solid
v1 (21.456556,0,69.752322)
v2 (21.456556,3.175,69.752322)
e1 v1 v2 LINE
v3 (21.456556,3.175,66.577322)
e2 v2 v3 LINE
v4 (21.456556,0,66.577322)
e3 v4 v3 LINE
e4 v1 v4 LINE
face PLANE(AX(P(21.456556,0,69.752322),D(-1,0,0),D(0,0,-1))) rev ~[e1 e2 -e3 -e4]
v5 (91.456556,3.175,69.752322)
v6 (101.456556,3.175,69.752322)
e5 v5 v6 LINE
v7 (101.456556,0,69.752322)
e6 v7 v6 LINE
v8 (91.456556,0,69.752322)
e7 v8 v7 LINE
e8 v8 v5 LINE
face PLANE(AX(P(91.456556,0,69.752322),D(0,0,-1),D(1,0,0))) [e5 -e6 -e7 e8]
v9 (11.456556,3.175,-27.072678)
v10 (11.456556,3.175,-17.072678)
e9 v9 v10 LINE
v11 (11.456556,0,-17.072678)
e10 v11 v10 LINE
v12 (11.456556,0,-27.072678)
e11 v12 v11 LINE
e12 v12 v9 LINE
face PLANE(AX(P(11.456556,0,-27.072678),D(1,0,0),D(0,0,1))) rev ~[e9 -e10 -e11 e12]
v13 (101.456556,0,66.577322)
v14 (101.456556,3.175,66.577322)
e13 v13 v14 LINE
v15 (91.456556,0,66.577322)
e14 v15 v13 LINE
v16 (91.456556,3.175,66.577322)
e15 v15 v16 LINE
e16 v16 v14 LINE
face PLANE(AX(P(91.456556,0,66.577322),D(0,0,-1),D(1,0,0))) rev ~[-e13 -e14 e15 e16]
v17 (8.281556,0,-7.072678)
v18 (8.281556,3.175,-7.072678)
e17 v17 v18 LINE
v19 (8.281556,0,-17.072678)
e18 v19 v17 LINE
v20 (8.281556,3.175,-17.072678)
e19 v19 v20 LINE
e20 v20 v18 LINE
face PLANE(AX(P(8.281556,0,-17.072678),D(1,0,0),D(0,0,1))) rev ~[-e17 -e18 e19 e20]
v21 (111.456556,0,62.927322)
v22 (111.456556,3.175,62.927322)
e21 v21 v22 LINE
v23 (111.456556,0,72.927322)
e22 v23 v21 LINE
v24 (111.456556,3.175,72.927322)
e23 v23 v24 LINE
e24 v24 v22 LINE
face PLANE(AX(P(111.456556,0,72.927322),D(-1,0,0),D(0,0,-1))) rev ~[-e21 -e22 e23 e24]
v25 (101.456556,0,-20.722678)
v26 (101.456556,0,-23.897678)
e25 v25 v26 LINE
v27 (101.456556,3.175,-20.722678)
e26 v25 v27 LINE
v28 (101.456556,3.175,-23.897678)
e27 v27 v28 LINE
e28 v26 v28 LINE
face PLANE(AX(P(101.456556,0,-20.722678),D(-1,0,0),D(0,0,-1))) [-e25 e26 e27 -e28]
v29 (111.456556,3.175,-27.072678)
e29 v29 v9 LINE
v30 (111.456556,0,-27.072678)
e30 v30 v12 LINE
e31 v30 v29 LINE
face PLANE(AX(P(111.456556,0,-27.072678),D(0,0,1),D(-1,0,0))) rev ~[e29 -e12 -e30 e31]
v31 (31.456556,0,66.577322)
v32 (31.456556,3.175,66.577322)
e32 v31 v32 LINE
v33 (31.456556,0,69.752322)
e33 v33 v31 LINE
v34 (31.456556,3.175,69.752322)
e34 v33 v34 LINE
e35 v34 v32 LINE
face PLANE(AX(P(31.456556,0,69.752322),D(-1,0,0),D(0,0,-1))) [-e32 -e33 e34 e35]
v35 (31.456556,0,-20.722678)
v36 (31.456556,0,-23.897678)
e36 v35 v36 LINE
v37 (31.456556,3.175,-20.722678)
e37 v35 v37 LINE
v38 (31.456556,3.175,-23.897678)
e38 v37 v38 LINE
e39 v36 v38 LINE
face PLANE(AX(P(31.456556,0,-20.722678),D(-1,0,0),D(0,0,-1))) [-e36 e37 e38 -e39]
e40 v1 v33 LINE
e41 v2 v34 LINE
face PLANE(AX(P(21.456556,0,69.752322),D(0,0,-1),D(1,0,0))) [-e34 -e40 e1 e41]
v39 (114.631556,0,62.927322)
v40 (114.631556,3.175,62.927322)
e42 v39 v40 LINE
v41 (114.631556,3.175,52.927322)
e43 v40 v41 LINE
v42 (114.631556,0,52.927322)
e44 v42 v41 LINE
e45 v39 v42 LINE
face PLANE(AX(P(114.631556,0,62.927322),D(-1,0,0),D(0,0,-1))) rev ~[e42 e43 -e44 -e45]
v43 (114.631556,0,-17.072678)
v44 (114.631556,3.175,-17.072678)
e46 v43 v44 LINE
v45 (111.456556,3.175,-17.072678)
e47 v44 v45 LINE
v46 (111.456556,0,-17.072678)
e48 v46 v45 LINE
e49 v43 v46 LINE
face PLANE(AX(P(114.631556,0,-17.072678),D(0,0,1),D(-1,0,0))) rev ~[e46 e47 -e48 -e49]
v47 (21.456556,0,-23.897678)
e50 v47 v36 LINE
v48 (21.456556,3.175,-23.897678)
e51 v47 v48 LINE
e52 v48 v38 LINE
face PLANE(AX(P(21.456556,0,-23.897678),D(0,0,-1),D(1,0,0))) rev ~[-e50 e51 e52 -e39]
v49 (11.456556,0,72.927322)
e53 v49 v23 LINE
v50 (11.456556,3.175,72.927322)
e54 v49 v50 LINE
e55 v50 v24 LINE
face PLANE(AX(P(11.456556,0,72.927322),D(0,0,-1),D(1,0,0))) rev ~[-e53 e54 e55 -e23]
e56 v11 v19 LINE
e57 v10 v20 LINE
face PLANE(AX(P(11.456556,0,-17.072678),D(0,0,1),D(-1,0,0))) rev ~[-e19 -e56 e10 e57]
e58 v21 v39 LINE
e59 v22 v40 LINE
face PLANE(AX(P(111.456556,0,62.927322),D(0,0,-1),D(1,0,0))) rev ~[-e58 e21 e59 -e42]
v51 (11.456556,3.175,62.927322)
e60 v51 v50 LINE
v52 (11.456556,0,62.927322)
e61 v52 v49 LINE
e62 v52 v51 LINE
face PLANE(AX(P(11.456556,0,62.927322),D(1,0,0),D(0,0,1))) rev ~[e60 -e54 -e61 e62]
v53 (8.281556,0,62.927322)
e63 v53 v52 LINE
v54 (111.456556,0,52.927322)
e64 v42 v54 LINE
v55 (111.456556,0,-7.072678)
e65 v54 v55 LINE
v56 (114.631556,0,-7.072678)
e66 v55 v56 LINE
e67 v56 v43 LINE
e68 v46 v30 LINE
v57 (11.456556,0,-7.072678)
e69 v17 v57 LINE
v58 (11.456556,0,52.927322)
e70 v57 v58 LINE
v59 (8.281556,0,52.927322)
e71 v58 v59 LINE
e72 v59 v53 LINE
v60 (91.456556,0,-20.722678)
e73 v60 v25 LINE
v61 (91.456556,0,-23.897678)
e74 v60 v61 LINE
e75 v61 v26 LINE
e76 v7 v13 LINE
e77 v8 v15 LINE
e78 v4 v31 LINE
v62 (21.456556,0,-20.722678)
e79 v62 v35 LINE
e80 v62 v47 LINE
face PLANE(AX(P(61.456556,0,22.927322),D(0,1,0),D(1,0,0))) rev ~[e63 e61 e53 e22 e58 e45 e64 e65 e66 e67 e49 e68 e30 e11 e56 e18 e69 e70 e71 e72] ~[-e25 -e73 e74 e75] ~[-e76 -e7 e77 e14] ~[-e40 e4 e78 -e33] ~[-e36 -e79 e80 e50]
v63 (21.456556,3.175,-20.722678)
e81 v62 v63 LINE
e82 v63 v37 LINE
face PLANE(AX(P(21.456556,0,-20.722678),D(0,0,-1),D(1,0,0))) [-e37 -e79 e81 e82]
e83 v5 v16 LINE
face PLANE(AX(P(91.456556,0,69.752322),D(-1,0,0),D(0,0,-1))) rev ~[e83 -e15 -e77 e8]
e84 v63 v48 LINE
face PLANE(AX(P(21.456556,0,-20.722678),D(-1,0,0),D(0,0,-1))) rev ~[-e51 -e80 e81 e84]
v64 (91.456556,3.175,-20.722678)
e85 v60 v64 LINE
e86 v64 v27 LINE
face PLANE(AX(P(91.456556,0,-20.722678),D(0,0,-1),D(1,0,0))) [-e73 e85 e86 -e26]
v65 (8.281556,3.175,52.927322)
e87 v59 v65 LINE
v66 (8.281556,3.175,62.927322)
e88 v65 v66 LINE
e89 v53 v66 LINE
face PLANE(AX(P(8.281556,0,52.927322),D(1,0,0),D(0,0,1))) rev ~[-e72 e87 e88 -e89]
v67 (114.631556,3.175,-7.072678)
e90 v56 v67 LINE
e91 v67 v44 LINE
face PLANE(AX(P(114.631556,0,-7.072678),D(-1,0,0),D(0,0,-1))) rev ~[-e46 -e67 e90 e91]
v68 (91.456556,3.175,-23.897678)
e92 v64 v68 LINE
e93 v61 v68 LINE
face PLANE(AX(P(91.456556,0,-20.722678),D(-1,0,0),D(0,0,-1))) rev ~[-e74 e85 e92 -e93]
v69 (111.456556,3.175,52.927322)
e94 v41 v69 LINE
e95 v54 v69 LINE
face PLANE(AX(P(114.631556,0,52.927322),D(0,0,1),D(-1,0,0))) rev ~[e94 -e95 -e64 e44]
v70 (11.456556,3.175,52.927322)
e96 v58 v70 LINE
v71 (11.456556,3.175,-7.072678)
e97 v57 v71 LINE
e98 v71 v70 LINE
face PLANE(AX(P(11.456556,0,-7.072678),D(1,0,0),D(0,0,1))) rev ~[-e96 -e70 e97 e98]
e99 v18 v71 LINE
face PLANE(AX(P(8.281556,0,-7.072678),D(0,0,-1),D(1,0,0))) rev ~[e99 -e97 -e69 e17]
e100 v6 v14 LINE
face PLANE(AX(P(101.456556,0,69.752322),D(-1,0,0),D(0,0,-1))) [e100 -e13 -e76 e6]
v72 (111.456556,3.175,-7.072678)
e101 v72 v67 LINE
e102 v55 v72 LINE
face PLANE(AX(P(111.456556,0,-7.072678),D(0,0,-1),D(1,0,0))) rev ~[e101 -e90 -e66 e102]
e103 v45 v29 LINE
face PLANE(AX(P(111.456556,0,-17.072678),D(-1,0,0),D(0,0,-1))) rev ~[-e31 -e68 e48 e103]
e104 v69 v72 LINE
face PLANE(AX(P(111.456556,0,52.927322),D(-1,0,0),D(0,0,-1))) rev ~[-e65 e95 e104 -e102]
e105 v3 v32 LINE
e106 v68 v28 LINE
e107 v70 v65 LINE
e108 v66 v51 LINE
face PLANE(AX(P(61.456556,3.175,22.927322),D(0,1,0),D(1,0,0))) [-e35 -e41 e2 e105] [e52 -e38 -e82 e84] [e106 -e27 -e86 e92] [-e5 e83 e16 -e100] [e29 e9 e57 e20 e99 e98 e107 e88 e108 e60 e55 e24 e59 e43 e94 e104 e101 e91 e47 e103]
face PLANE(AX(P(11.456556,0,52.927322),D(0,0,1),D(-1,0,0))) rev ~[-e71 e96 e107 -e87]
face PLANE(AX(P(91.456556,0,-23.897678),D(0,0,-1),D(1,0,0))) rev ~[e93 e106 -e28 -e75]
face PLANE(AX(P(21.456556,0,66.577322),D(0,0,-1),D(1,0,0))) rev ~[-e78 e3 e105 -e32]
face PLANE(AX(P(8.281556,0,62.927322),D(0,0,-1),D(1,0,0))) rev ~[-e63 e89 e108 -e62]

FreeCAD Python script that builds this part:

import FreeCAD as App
import Part
import Sketcher
from FreeCAD import Vector

doc = App.newDocument("Part")
params = doc.addObject("Spreadsheet::Sheet", "Params")
for row, (alias, value) in enumerate([
    ("sketch1_width", "100 mm"),
    ("sketch1_width2", "10 mm"),
    ("sketch1_height", "60 mm"),
    ("pad1_length", "3.175 mm"),
], start=1):
    params.set(f"A{row}", alias)
    params.set(f"B{row}", "=" + value)
    params.setAlias(f"B{row}", alias)

body = doc.addObject("PartDesign::Body", "Body")

sketch1 = body.newObject("Sketcher::SketchObject", "Sketch")
sketch1.AttachmentSupport = (doc.getObject("XZ_Plane"), [""])
sketch1.MapMode = "FlatFace"
sketch1.addGeometry(Part.LineSegment(Vector(11.5, 72.9, 0), Vector(111.5, 72.9, 0)), False)
sketch1.addGeometry(Part.LineSegment(Vector(111.5, 72.9, 0), Vector(111.5, 62.9, 0)), False)
sketch1.addGeometry(Part.LineSegment(Vector(111.5, 62.9, 0), Vector(114.6, 62.9, 0)), False)
sketch1.addGeometry(Part.LineSegment(Vector(114.6, 62.9, 0), Vector(114.6, 52.9, 0)), False)
sketch1.addGeometry(Part.LineSegment(Vector(114.6, 52.9, 0), Vector(111.5, 52.9, 0)), False)
sketch1.addGeometry(Part.LineSegment(Vector(111.5, 52.9, 0), Vector(111.5, -7.1, 0)), False)
sketch1.addGeometry(Part.LineSegment(Vector(111.5, -7.1, 0), Vector(114.6, -7.1, 0)), False)
sketch1.addGeometry(Part.LineSegment(Vector(114.6, -7.1, 0), Vector(114.6, -17.1, 0)), False)
sketch1.addGeometry(Part.LineSegment(Vector(114.6, -17.1, 0), Vector(111.5, -17.1, 0)), False)
sketch1.addGeometry(Part.LineSegment(Vector(111.5, -17.1, 0), Vector(111.5, -27.1, 0)), False)
sketch1.addGeometry(Part.LineSegment(Vector(111.5, -27.1, 0), Vector(11.5, -27.1, 0)), False)
sketch1.addGeometry(Part.LineSegment(Vector(11.5, -27.1, 0), Vector(11.5, -17.1, 0)), False)
sketch1.addGeometry(Part.LineSegment(Vector(11.5, -17.1, 0), Vector(8.3, -17.1, 0)), False)
sketch1.addGeometry(Part.LineSegment(Vector(8.3, -17.1, 0), Vector(8.3, -7.1, 0)), False)
sketch1.addGeometry(Part.LineSegment(Vector(8.3, -7.1, 0), Vector(11.5, -7.1, 0)), False)
sketch1.addGeometry(Part.LineSegment(Vector(11.5, -7.1, 0), Vector(11.5, 52.9, 0)), False)
sketch1.addGeometry(Part.LineSegment(Vector(11.5, 52.9, 0), Vector(8.3, 52.9, 0)), False)
sketch1.addGeometry(Part.LineSegment(Vector(8.3, 52.9, 0), Vector(8.3, 62.9, 0)), False)
sketch1.addGeometry(Part.LineSegment(Vector(8.3, 62.9, 0), Vector(11.5, 62.9, 0)), False)
sketch1.addGeometry(Part.LineSegment(Vector(11.5, 62.9, 0), Vector(11.5, 72.9, 0)), False)
sketch1.addGeometry(Part.LineSegment(Vector(31.5, 69.8, 0), Vector(21.5, 69.8, 0)), False)
sketch1.addGeometry(Part.LineSegment(Vector(21.5, 69.8, 0), Vector(21.5, 66.6, 0)), False)
sketch1.addGeometry(Part.LineSegment(Vector(21.5, 66.6, 0), Vector(31.5, 66.6, 0)), False)
sketch1.addGeometry(Part.LineSegment(Vector(31.5, 66.6, 0), Vector(31.5, 69.8, 0)), False)
sketch1.addGeometry(Part.LineSegment(Vector(101.5, 69.8, 0), Vector(91.5, 69.8, 0)), False)
sketch1.addGeometry(Part.LineSegment(Vector(91.5, 69.8, 0), Vector(91.5, 66.6, 0)), False)
sketch1.addGeometry(Part.LineSegment(Vector(91.5, 66.6, 0), Vector(101.5, 66.6, 0)), False)
sketch1.addGeometry(Part.LineSegment(Vector(101.5, 66.6, 0), Vector(101.5, 69.8, 0)), False)
sketch1.addGeometry(Part.LineSegment(Vector(31.5, -20.7, 0), Vector(21.5, -20.7, 0)), False)
sketch1.addGeometry(Part.LineSegment(Vector(21.5, -20.7, 0), Vector(21.5, -23.9, 0)), False)
sketch1.addGeometry(Part.LineSegment(Vector(21.5, -23.9, 0), Vector(31.5, -23.9, 0)), False)
sketch1.addGeometry(Part.LineSegment(Vector(31.5, -23.9, 0), Vector(31.5, -20.7, 0)), False)
sketch1.addGeometry(Part.LineSegment(Vector(101.5, -20.7, 0), Vector(91.5, -20.7, 0)), False)
sketch1.addGeometry(Part.LineSegment(Vector(91.5, -20.7, 0), Vector(91.5, -23.9, 0)), False)
sketch1.addGeometry(Part.LineSegment(Vector(91.5, -23.9, 0), Vector(101.5, -23.9, 0)), False)
sketch1.addGeometry(Part.LineSegment(Vector(101.5, -23.9, 0), Vector(101.5, -20.7, 0)), False)
sketch1.addConstraint(Sketcher.Constraint("Coincident", 0, 2, 1, 1))
sketch1.addConstraint(Sketcher.Constraint("Coincident", 1, 2, 2, 1))
sketch1.addConstraint(Sketcher.Constraint("Coincident", 2, 2, 3, 1))
sketch1.addConstraint(Sketcher.Constraint("Coincident", 3, 2, 4, 1))
sketch1.addConstraint(Sketcher.Constraint("Coincident", 4, 2, 5, 1))
sketch1.addConstraint(Sketcher.Constraint("Coincident", 5, 2, 6, 1))
sketch1.addConstraint(Sketcher.Constraint("Coincident", 6, 2, 7, 1))
sketch1.addConstraint(Sketcher.Constraint("Coincident", 7, 2, 8, 1))
sketch1.addConstraint(Sketcher.Constraint("Coincident", 8, 2, 9, 1))
sketch1.addConstraint(Sketcher.Constraint("Coincident", 9, 2, 10, 1))
sketch1.addConstraint(Sketcher.Constraint("Coincident", 10, 2, 11, 1))
sketch1.addConstraint(Sketcher.Constraint("Coincident", 11, 2, 12, 1))
sketch1.addConstraint(Sketcher.Constraint("Coincident", 12, 2, 13, 1))
sketch1.addConstraint(Sketcher.Constraint("Coincident", 13, 2, 14, 1))
sketch1.addConstraint(Sketcher.Constraint("Coincident", 14, 2, 15, 1))
sketch1.addConstraint(Sketcher.Constraint("Coincident", 15, 2, 16, 1))
sketch1.addConstraint(Sketcher.Constraint("Coincident", 16, 2, 17, 1))
sketch1.addConstraint(Sketcher.Constraint("Coincident", 17, 2, 18, 1))
sketch1.addConstraint(Sketcher.Constraint("Coincident", 18, 2, 19, 1))
sketch1.addConstraint(Sketcher.Constraint("Coincident", 19, 2, 0, 1))
sketch1.addConstraint(Sketcher.Constraint("Coincident", 20, 2, 21, 1))
sketch1.addConstraint(Sketcher.Constraint("Coincident", 21, 2, 22, 1))
sketch1.addConstraint(Sketcher.Constraint("Coincident", 22, 2, 23, 1))
sketch1.addConstraint(Sketcher.Constraint("Coincident", 23, 2, 20, 1))
sketch1.addConstraint(Sketcher.Constraint("Coincident", 24, 2, 25, 1))
sketch1.addConstraint(Sketcher.Constraint("Coincident", 25, 2, 26, 1))
sketch1.addConstraint(Sketcher.Constraint("Coincident", 26, 2, 27, 1))
sketch1.addConstraint(Sketcher.Constraint("Coincident", 27, 2, 24, 1))
sketch1.addConstraint(Sketcher.Constraint("Coincident", 28, 2, 29, 1))
sketch1.addConstraint(Sketcher.Constraint("Coincident", 29, 2, 30, 1))
sketch1.addConstraint(Sketcher.Constraint("Coincident", 30, 2, 31, 1))
sketch1.addConstraint(Sketcher.Constraint("Coincident", 31, 2, 28, 1))
sketch1.addConstraint(Sketcher.Constraint("Coincident", 32, 2, 33, 1))
sketch1.addConstraint(Sketcher.Constraint("Coincident", 33, 2, 34, 1))
sketch1.addConstraint(Sketcher.Constraint("Coincident", 34, 2, 35, 1))
sketch1.addConstraint(Sketcher.Constraint("Coincident", 35, 2, 32, 1))
sketch1.addConstraint(Sketcher.Constraint("Horizontal", 0))
sketch1.addConstraint(Sketcher.Constraint("Vertical", 1))
sketch1.addConstraint(Sketcher.Constraint("Horizontal", 2))
sketch1.addConstraint(Sketcher.Constraint("Vertical", 3))
sketch1.addConstraint(Sketcher.Constraint("Horizontal", 4))
sketch1.addConstraint(Sketcher.Constraint("Vertical", 5))
sketch1.addConstraint(Sketcher.Constraint("Horizontal", 6))
sketch1.addConstraint(Sketcher.Constraint("Vertical", 7))
sketch1.addConstraint(Sketcher.Constraint("Horizontal", 8))
sketch1.addConstraint(Sketcher.Constraint("Vertical", 9))
sketch1.addConstraint(Sketcher.Constraint("Horizontal", 10))
sketch1.addConstraint(Sketcher.Constraint("Vertical", 11))
sketch1.addConstraint(Sketcher.Constraint("Horizontal", 12))
sketch1.addConstraint(Sketcher.Constraint("Vertical", 13))
sketch1.addConstraint(Sketcher.Constraint("Horizontal", 14))
sketch1.addConstraint(Sketcher.Constraint("Vertical", 15))
sketch1.addConstraint(Sketcher.Constraint("Horizontal", 16))
sketch1.addConstraint(Sketcher.Constraint("Vertical", 17))
sketch1.addConstraint(Sketcher.Constraint("Horizontal", 18))
sketch1.addConstraint(Sketcher.Constraint("Vertical", 19))
sketch1.addConstraint(Sketcher.Constraint("Horizontal", 20))
sketch1.addConstraint(Sketcher.Constraint("Vertical", 21))
sketch1.addConstraint(Sketcher.Constraint("Horizontal", 22))
sketch1.addConstraint(Sketcher.Constraint("Vertical", 23))
sketch1.addConstraint(Sketcher.Constraint("Horizontal", 24))
sketch1.addConstraint(Sketcher.Constraint("Vertical", 25))
sketch1.addConstraint(Sketcher.Constraint("Horizontal", 26))
sketch1.addConstraint(Sketcher.Constraint("Vertical", 27))
sketch1.addConstraint(Sketcher.Constraint("Horizontal", 28))
sketch1.addConstraint(Sketcher.Constraint("Vertical", 29))
sketch1.addConstraint(Sketcher.Constraint("Horizontal", 30))
sketch1.addConstraint(Sketcher.Constraint("Vertical", 31))
sketch1.addConstraint(Sketcher.Constraint("Horizontal", 32))
sketch1.addConstraint(Sketcher.Constraint("Vertical", 33))
sketch1.addConstraint(Sketcher.Constraint("Horizontal", 34))
sketch1.addConstraint(Sketcher.Constraint("Vertical", 35))
sketch1.addConstraint(Sketcher.Constraint("Horizontal", 8, 2, 11, 2))
sketch1.addConstraint(Sketcher.Constraint("Horizontal", 6, 2, 13, 2))
sketch1.addConstraint(Sketcher.Constraint("Horizontal", 4, 2, 15, 2))
sketch1.addConstraint(Sketcher.Constraint("Horizontal", 2, 2, 17, 2))
sketch1.addConstraint(Sketcher.Constraint("Horizontal", 23, 2, 24, 2))
sketch1.addConstraint(Sketcher.Constraint("Horizontal", 22, 2, 25, 2))
sketch1.addConstraint(Sketcher.Constraint("Horizontal", 31, 2, 32, 2))
sketch1.addConstraint(Sketcher.Constraint("Horizontal", 30, 2, 33, 2))
sketch1.addConstraint(Sketcher.Constraint("Vertical", 1, 2, 4, 2))
sketch1.addConstraint(Sketcher.Constraint("Vertical", 3, 2, 6, 2))
sketch1.addConstraint(Sketcher.Constraint("Vertical", 5, 2, 8, 2))
sketch1.addConstraint(Sketcher.Constraint("Vertical", 11, 2, 14, 2))
sketch1.addConstraint(Sketcher.Constraint("Vertical", 13, 2, 16, 2))
sketch1.addConstraint(Sketcher.Constraint("Vertical", 15, 2, 18, 2))
sketch1.addConstraint(Sketcher.Constraint("Vertical", 21, 2, 28, 2))
sketch1.addConstraint(Sketcher.Constraint("Vertical", 23, 2, 30, 2))
sketch1.addConstraint(Sketcher.Constraint("Vertical", 25, 2, 32, 2))
sketch1.addConstraint(Sketcher.Constraint("Vertical", 27, 2, 34, 2))
sketch1.addConstraint(Sketcher.Constraint("Equal", 8, 12))
sketch1.addConstraint(Sketcher.Constraint("Equal", 22, 24))
sketch1.addConstraint(Sketcher.Constraint("Equal", 34, 1))
sketch1.addConstraint(Sketcher.Constraint("Equal", 1, 3))
sketch1.addConstraint(Sketcher.Constraint("Equal", 3, 7))
sketch1.addConstraint(Sketcher.Constraint("Equal", 7, 9))
sketch1.addConstraint(Sketcher.Constraint("Equal", 18, 21))
sketch1.addConstraint(Sketcher.Constraint("Equal", 27, 29))
sketch1.addConstraint(Sketcher.Constraint("DistanceX", 0, 1, 0, 2, 100.0))
sketch1.addConstraint(Sketcher.Constraint("DistanceX", 20, 2, 20, 1, 10.0))
sketch1.addConstraint(Sketcher.Constraint("DistanceY", 5, 2, 5, 1, 60.0))
sketch1.addConstraint(Sketcher.Constraint("DistanceX", 19, 2, 20, 2, 10.0))
sketch1.addConstraint(Sketcher.Constraint("DistanceX", 24, 2, 0, 2, 20.0))
sketch1.addConstraint(Sketcher.Constraint("DistanceX", 2, 1, 2, 2, 3.175))
sketch1.addConstraint(Sketcher.Constraint("DistanceY", 18, 2, 21, 2, 3.65))
sketch1.addConstraint(Sketcher.Constraint("DistanceY", 28, 2, 11, 2, 3.65))
sketch1.addConstraint(Sketcher.Constraint("DistanceX", -1, 1, 0, 2, 111.456556))
sketch1.addConstraint(Sketcher.Constraint("DistanceY", -1, 1, 0, 2, 72.927322))
sketch1.setExpression("Constraints[98]", "Params.sketch1_width")
sketch1.setExpression("Constraints[99]", "Params.sketch1_width2")
sketch1.setExpression("Constraints[100]", "Params.sketch1_height")
pad1 = body.newObject("PartDesign::Pad", "Pad")
pad1.Profile = sketch1
pad1.setExpression("Length", "Params.pad1_length")
pad1.Reversed = True

doc.recompute()
